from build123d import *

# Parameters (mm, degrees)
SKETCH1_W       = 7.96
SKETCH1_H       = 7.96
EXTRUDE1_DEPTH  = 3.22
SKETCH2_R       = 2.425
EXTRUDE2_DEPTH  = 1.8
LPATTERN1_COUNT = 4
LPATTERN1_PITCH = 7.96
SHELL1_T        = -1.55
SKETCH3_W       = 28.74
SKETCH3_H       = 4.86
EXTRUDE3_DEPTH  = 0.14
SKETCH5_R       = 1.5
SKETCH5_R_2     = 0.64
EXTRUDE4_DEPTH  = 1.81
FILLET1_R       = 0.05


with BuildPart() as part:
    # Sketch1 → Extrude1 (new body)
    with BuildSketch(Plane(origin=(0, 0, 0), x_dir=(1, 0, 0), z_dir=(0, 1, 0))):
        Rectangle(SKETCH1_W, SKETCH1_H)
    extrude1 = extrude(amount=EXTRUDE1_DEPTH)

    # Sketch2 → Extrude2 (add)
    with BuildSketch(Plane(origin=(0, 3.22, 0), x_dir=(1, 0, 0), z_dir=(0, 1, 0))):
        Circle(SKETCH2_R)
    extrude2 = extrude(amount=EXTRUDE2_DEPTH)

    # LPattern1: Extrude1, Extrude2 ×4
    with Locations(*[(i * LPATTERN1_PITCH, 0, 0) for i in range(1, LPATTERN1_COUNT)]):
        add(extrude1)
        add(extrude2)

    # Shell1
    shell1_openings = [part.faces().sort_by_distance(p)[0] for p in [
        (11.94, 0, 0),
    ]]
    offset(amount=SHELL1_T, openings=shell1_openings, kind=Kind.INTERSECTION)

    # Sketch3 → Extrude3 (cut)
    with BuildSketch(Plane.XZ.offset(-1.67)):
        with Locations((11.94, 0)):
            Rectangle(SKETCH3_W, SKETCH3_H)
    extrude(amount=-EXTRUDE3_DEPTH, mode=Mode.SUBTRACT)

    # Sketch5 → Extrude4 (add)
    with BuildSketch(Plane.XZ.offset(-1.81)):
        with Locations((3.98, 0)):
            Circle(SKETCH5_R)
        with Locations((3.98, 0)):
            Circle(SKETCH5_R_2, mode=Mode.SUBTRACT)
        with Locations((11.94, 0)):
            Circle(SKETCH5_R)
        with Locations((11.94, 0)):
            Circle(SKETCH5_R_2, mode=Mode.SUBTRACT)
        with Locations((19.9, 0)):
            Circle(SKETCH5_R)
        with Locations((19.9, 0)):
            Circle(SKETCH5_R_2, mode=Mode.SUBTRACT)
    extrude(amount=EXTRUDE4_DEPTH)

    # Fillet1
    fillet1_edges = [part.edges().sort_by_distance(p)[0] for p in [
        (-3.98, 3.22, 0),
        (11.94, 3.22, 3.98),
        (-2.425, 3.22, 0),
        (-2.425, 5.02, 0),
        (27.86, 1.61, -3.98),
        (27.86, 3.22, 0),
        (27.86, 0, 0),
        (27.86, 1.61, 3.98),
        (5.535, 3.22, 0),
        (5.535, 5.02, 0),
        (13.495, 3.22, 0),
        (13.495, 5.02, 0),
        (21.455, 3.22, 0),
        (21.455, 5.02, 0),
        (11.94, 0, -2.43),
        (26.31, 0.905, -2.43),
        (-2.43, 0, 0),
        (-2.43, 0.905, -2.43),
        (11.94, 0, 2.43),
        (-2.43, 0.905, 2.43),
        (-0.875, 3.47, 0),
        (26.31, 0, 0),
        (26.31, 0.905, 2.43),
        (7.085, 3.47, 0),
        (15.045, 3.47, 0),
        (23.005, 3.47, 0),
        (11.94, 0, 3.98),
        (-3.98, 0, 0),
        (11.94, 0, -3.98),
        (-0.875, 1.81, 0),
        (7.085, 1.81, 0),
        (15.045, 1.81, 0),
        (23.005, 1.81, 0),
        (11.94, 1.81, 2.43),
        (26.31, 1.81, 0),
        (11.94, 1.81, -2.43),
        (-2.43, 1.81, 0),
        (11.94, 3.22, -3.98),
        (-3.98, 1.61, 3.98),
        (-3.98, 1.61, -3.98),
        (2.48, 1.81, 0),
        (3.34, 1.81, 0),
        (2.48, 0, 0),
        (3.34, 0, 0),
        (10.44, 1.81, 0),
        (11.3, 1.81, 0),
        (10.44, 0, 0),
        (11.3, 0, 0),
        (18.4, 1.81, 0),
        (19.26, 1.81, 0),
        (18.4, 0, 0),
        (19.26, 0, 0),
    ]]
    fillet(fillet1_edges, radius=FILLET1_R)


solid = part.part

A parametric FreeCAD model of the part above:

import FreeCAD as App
import Part
import Sketcher
Q = App.Units.Quantity


def faces_at(feature, points):
    """Names of the faces that lie closest to the given points."""
    faces = feature.Shape.Faces
    near = lambda p: min(range(len(faces)), key=lambda i: faces[i].distToShape(Part.Vertex(*p))[0])
    return sorted({f"Face{near(p) + 1}" for p in points})

doc = App.newDocument("Part")
params = doc.addObject("Spreadsheet::Sheet", "Params")
for row, (alias, value) in enumerate([
    ("sketch1_width", "7.96 mm"),
    ("pad1_length", "3.22 mm"),
    ("sketch2_diameter", "4.85 mm"),
    ("pad2_length", "1.8 mm"),
    ("linearpattern_pitch", "7.96 mm"),
    ("thickness_wall", "1.55 mm"),
    ("sketch3_width", "28.74 mm"),
    ("sketch3_height", "4.86 mm"),
    ("pocket1_length", "0.14 mm"),
    ("sketch4_diameter", "3 mm"),
    ("sketch4_diameter2", "1.28 mm"),
    ("pad3_length", "1.81 mm"),
    ("fillet_radius", "0.05 mm"),
], start=1):
    params.set(f"A{row}", alias)
    params.set(f"B{row}", "=" + value)
    params.setAlias(f"B{row}", alias)

body = doc.addObject("PartDesign::Body", "Body")

sketch1 = body.newObject("Sketcher::SketchObject", "Sketch")
sketch1.AttachmentSupport = (doc.getObject("XZ_Plane"), [""])
sketch1.MapMode = "FlatFace"
sketch1.addGeometry(Part.LineSegment(App.Vector(-4, -4, 0), App.Vector(-4, 4, 0)), False)
sketch1.addGeometry(Part.LineSegment(App.Vector(-4, 4, 0), App.Vector(4, 4, 0)), False)
sketch1.addGeometry(Part.LineSegment(App.Vector(4, 4, 0), App.Vector(4, -4, 0)), False)
sketch1.addGeometry(Part.LineSegment(App.Vector(4, -4, 0), App.Vector(-4, -4, 0)), False)
sketch1.addConstraint(Sketcher.Constraint("Coincident", 0, 2, 1, 1))
sketch1.addConstraint(Sketcher.Constraint("Coincident", 1, 2, 2, 1))
sketch1.addConstraint(Sketcher.Constraint("Coincident", 2, 2, 3, 1))
sketch1.addConstraint(Sketcher.Constraint("Coincident", 3, 2, 0, 1))
sketch1.addConstraint(Sketcher.Constraint("Vertical", 0))
sketch1.addConstraint(Sketcher.Constraint("Horizontal", 1))
sketch1.addConstraint(Sketcher.Constraint("Vertical", 2))
sketch1.addConstraint(Sketcher.Constraint("Horizontal", 3))
sketch1.addConstraint(Sketcher.Constraint("Symmetric", 0, 2, 2, 2, -1, 1))
sketch1.addConstraint(Sketcher.Constraint("Equal", 3, 0))
sketch1.addConstraint(Sketcher.Constraint("DistanceX", 1, 1, 1, 2, Q("7.96 mm")))
sketch1.setExpression("Constraints[10]", "Params.sketch1_width")
pad1 = body.newObject("PartDesign::Pad", "Pad")
pad1.Profile = sketch1
pad1.setExpression("Length", "Params.pad1_length")
pad1.Reversed = True

sketch2 = body.newObject("Sketcher::SketchObject", "Sketch001")
sketch2.AttachmentSupport = (doc.getObject("XZ_Plane"), [""])
sketch2.MapMode = "FlatFace"
sketch2.AttachmentOffset = App.Placement(App.Vector(0, 0, -3.22), App.Rotation())
sketch2.addGeometry(Part.Circle(App.Vector(0, 0, 0), App.Vector(0, 0, 1), 2.4), False)
sketch2.addConstraint(Sketcher.Constraint("Coincident", 0, 3, -1, 1))
sketch2.addConstraint(Sketcher.Constraint("Diameter", 0, Q("4.85 mm")))
sketch2.setExpression("Constraints[1]", "Params.sketch2_diameter")
pad2 = body.newObject("PartDesign::Pad", "Pad001")
pad2.Profile = sketch2
pad2.setExpression("Length", "Params.pad2_length")
pad2.Reversed = True
doc.recompute()

linearpattern = body.newObject("PartDesign::LinearPattern", "LinearPattern")
linearpattern.Originals = [pad1, pad2]
linearpattern.Direction = (doc.getObject("X_Axis"), [""])
linearpattern.Mode = "offset"
linearpattern.setExpression("Offset", "Params.linearpattern_pitch")
linearpattern.Occurrences = 4
body.Tip = linearpattern
doc.recompute()

thickness = body.newObject("PartDesign::Thickness", "Thickness")
thickness.Base = (linearpattern, faces_at(linearpattern, [(11.94, 0, 0)]))
thickness.setExpression("Value", "Params.thickness_wall")
thickness.Reversed = True
thickness.Join = "Intersection"

sketch3 = body.newObject("Sketcher::SketchObject", "Sketch002")
sketch3.AttachmentSupport = (doc.getObject("XZ_Plane"), [""])
sketch3.MapMode = "FlatFace"
sketch3.AttachmentOffset = App.Placement(App.Vector(0, 0, -1.67), App.Rotation())
sketch3.addGeometry(Part.LineSegment(App.Vector(-2.4, 2.4, 0), App.Vector(-2.4, -2.4, 0)), False)
sketch3.addGeometry(Part.LineSegment(App.Vector(-2.4, -2.4, 0), App.Vector(26.3, -2.4, 0)), False)
sketch3.addGeometry(Part.LineSegment(App.Vector(26.3, -2.4, 0), App.Vector(26.3, 2.4, 0)), False)
sketch3.addGeometry(Part.LineSegment(App.Vector(26.3, 2.4, 0), App.Vector(-2.4, 2.4, 0)), False)
sketch3.addConstraint(Sketcher.Constraint("Coincident", 0, 2, 1, 1))
sketch3.addConstraint(Sketcher.Constraint("Coincident", 1, 2, 2, 1))
sketch3.addConstraint(Sketcher.Constraint("Coincident", 2, 2, 3, 1))
sketch3.addConstraint(Sketcher.Constraint("Coincident", 3, 2, 0, 1))
sketch3.addConstraint(Sketcher.Constraint("Vertical", 0))
sketch3.addConstraint(Sketcher.Constraint("Horizontal", 1))
sketch3.addConstraint(Sketcher.Constraint("Vertical", 2))
sketch3.addConstraint(Sketcher.Constraint("Horizontal", 3))
sketch3.addConstraint(Sketcher.Constraint("DistanceX", 1, 1, 1, 2, Q("28.74 mm")))
sketch3.addConstraint(Sketcher.Constraint("DistanceY", 0, 2, 0, 1, Q("4.86 mm")))
sketch3.addConstraint(Sketcher.Constraint("DistanceX", 0, 2, -1, 1, Q("2.43 mm")))
sketch3.addConstraint(Sketcher.Constraint("DistanceY", 0, 2, -1, 1, Q("2.43 mm")))
sketch3.setExpression("Constraints[8]", "Params.sketch3_width")
sketch3.setExpression("Constraints[9]", "Params.sketch3_height")
pocket1 = body.newObject("PartDesign::Pocket", "Pocket")
pocket1.Profile = sketch3
pocket1.setExpression("Length", "Params.pocket1_length")

sketch4 = body.newObject("Sketcher::SketchObject", "Sketch003")
sketch4.AttachmentSupport = (doc.getObject("XZ_Plane"), [""])
sketch4.MapMode = "FlatFace"
sketch4.AttachmentOffset = App.Placement(App.Vector(0, 0, -1.81), App.Rotation())
sketch4.addGeometry(Part.Circle(App.Vector(4, 0, 0), App.Vector(0, 0, 1), 1.5), False)
sketch4.addGeometry(Part.Circle(App.Vector(4, 0, 0), App.Vector(0, 0, 1), 0.6), False)
sketch4.addGeometry(Part.Circle(App.Vector(11.9, 0, 0), App.Vector(0, 0, 1), 1.5), False)
sketch4.addGeometry(Part.Circle(App.Vector(11.9, 0, 0), App.Vector(0, 0, 1), 0.6), False)
sketch4.addGeometry(Part.Circle(App.Vector(19.9, 0, 0), App.Vector(0, 0, 1), 1.5), False)
sketch4.addGeometry(Part.Circle(App.Vector(19.9, 0, 0), App.Vector(0, 0, 1), 0.6), False)
sketch4.addConstraint(Sketcher.Constraint("Coincident", 1, 3, 0, 3))
sketch4.addConstraint(Sketcher.Constraint("Coincident", 3, 3, 2, 3))
sketch4.addConstraint(Sketcher.Constraint("Coincident", 5, 3, 4, 3))
sketch4.addConstraint(Sketcher.Constraint("Equal", 0, 2))
sketch4.addConstraint(Sketcher.Constraint("Equal", 1, 3))
sketch4.addConstraint(Sketcher.Constraint("Equal", 2, 4))
sketch4.addConstraint(Sketcher.Constraint("Equal", 3, 5))
sketch4.addConstraint(Sketcher.Constraint("PointOnObject", 0, 3, -1))
sketch4.addConstraint(Sketcher.Constraint("PointOnObject", 2, 3, -1))
sketch4.addConstraint(Sketcher.Constraint("PointOnObject", 4, 3, -1))
sketch4.addConstraint(Sketcher.Constraint("Diameter", 0, Q("3 mm")))
sketch4.addConstraint(Sketcher.Constraint("Diameter", 1, Q("1.28 mm")))
sketch4.addConstraint(Sketcher.Constraint("DistanceX", -1, 1, 4, 3, Q("19.9 mm")))
sketch4.addConstraint(Sketcher.Constraint("DistanceX", -1, 1, 0, 3, Q("3.98 mm")))
sketch4.addConstraint(Sketcher.Constraint("DistanceX", -1, 1, 2, 3, Q("11.94 mm")))
sketch4.setExpression("Constraints[10]", "Params.sketch4_diameter")
sketch4.setExpression("Constraints[11]", "Params.sketch4_diameter2")
pad3 = body.newObject("PartDesign::Pad", "Pad002")
pad3.Profile = sketch4
pad3.setExpression("Length", "Params.pad3_length")
doc.recompute()

fillet = body.newObject("PartDesign::Fillet", "Fillet")
fillet.Base = (pad3, ["Edge1"])
fillet.UseAllEdges = True
fillet.setExpression("Radius", "Params.fillet_radius")

doc.recompute()
